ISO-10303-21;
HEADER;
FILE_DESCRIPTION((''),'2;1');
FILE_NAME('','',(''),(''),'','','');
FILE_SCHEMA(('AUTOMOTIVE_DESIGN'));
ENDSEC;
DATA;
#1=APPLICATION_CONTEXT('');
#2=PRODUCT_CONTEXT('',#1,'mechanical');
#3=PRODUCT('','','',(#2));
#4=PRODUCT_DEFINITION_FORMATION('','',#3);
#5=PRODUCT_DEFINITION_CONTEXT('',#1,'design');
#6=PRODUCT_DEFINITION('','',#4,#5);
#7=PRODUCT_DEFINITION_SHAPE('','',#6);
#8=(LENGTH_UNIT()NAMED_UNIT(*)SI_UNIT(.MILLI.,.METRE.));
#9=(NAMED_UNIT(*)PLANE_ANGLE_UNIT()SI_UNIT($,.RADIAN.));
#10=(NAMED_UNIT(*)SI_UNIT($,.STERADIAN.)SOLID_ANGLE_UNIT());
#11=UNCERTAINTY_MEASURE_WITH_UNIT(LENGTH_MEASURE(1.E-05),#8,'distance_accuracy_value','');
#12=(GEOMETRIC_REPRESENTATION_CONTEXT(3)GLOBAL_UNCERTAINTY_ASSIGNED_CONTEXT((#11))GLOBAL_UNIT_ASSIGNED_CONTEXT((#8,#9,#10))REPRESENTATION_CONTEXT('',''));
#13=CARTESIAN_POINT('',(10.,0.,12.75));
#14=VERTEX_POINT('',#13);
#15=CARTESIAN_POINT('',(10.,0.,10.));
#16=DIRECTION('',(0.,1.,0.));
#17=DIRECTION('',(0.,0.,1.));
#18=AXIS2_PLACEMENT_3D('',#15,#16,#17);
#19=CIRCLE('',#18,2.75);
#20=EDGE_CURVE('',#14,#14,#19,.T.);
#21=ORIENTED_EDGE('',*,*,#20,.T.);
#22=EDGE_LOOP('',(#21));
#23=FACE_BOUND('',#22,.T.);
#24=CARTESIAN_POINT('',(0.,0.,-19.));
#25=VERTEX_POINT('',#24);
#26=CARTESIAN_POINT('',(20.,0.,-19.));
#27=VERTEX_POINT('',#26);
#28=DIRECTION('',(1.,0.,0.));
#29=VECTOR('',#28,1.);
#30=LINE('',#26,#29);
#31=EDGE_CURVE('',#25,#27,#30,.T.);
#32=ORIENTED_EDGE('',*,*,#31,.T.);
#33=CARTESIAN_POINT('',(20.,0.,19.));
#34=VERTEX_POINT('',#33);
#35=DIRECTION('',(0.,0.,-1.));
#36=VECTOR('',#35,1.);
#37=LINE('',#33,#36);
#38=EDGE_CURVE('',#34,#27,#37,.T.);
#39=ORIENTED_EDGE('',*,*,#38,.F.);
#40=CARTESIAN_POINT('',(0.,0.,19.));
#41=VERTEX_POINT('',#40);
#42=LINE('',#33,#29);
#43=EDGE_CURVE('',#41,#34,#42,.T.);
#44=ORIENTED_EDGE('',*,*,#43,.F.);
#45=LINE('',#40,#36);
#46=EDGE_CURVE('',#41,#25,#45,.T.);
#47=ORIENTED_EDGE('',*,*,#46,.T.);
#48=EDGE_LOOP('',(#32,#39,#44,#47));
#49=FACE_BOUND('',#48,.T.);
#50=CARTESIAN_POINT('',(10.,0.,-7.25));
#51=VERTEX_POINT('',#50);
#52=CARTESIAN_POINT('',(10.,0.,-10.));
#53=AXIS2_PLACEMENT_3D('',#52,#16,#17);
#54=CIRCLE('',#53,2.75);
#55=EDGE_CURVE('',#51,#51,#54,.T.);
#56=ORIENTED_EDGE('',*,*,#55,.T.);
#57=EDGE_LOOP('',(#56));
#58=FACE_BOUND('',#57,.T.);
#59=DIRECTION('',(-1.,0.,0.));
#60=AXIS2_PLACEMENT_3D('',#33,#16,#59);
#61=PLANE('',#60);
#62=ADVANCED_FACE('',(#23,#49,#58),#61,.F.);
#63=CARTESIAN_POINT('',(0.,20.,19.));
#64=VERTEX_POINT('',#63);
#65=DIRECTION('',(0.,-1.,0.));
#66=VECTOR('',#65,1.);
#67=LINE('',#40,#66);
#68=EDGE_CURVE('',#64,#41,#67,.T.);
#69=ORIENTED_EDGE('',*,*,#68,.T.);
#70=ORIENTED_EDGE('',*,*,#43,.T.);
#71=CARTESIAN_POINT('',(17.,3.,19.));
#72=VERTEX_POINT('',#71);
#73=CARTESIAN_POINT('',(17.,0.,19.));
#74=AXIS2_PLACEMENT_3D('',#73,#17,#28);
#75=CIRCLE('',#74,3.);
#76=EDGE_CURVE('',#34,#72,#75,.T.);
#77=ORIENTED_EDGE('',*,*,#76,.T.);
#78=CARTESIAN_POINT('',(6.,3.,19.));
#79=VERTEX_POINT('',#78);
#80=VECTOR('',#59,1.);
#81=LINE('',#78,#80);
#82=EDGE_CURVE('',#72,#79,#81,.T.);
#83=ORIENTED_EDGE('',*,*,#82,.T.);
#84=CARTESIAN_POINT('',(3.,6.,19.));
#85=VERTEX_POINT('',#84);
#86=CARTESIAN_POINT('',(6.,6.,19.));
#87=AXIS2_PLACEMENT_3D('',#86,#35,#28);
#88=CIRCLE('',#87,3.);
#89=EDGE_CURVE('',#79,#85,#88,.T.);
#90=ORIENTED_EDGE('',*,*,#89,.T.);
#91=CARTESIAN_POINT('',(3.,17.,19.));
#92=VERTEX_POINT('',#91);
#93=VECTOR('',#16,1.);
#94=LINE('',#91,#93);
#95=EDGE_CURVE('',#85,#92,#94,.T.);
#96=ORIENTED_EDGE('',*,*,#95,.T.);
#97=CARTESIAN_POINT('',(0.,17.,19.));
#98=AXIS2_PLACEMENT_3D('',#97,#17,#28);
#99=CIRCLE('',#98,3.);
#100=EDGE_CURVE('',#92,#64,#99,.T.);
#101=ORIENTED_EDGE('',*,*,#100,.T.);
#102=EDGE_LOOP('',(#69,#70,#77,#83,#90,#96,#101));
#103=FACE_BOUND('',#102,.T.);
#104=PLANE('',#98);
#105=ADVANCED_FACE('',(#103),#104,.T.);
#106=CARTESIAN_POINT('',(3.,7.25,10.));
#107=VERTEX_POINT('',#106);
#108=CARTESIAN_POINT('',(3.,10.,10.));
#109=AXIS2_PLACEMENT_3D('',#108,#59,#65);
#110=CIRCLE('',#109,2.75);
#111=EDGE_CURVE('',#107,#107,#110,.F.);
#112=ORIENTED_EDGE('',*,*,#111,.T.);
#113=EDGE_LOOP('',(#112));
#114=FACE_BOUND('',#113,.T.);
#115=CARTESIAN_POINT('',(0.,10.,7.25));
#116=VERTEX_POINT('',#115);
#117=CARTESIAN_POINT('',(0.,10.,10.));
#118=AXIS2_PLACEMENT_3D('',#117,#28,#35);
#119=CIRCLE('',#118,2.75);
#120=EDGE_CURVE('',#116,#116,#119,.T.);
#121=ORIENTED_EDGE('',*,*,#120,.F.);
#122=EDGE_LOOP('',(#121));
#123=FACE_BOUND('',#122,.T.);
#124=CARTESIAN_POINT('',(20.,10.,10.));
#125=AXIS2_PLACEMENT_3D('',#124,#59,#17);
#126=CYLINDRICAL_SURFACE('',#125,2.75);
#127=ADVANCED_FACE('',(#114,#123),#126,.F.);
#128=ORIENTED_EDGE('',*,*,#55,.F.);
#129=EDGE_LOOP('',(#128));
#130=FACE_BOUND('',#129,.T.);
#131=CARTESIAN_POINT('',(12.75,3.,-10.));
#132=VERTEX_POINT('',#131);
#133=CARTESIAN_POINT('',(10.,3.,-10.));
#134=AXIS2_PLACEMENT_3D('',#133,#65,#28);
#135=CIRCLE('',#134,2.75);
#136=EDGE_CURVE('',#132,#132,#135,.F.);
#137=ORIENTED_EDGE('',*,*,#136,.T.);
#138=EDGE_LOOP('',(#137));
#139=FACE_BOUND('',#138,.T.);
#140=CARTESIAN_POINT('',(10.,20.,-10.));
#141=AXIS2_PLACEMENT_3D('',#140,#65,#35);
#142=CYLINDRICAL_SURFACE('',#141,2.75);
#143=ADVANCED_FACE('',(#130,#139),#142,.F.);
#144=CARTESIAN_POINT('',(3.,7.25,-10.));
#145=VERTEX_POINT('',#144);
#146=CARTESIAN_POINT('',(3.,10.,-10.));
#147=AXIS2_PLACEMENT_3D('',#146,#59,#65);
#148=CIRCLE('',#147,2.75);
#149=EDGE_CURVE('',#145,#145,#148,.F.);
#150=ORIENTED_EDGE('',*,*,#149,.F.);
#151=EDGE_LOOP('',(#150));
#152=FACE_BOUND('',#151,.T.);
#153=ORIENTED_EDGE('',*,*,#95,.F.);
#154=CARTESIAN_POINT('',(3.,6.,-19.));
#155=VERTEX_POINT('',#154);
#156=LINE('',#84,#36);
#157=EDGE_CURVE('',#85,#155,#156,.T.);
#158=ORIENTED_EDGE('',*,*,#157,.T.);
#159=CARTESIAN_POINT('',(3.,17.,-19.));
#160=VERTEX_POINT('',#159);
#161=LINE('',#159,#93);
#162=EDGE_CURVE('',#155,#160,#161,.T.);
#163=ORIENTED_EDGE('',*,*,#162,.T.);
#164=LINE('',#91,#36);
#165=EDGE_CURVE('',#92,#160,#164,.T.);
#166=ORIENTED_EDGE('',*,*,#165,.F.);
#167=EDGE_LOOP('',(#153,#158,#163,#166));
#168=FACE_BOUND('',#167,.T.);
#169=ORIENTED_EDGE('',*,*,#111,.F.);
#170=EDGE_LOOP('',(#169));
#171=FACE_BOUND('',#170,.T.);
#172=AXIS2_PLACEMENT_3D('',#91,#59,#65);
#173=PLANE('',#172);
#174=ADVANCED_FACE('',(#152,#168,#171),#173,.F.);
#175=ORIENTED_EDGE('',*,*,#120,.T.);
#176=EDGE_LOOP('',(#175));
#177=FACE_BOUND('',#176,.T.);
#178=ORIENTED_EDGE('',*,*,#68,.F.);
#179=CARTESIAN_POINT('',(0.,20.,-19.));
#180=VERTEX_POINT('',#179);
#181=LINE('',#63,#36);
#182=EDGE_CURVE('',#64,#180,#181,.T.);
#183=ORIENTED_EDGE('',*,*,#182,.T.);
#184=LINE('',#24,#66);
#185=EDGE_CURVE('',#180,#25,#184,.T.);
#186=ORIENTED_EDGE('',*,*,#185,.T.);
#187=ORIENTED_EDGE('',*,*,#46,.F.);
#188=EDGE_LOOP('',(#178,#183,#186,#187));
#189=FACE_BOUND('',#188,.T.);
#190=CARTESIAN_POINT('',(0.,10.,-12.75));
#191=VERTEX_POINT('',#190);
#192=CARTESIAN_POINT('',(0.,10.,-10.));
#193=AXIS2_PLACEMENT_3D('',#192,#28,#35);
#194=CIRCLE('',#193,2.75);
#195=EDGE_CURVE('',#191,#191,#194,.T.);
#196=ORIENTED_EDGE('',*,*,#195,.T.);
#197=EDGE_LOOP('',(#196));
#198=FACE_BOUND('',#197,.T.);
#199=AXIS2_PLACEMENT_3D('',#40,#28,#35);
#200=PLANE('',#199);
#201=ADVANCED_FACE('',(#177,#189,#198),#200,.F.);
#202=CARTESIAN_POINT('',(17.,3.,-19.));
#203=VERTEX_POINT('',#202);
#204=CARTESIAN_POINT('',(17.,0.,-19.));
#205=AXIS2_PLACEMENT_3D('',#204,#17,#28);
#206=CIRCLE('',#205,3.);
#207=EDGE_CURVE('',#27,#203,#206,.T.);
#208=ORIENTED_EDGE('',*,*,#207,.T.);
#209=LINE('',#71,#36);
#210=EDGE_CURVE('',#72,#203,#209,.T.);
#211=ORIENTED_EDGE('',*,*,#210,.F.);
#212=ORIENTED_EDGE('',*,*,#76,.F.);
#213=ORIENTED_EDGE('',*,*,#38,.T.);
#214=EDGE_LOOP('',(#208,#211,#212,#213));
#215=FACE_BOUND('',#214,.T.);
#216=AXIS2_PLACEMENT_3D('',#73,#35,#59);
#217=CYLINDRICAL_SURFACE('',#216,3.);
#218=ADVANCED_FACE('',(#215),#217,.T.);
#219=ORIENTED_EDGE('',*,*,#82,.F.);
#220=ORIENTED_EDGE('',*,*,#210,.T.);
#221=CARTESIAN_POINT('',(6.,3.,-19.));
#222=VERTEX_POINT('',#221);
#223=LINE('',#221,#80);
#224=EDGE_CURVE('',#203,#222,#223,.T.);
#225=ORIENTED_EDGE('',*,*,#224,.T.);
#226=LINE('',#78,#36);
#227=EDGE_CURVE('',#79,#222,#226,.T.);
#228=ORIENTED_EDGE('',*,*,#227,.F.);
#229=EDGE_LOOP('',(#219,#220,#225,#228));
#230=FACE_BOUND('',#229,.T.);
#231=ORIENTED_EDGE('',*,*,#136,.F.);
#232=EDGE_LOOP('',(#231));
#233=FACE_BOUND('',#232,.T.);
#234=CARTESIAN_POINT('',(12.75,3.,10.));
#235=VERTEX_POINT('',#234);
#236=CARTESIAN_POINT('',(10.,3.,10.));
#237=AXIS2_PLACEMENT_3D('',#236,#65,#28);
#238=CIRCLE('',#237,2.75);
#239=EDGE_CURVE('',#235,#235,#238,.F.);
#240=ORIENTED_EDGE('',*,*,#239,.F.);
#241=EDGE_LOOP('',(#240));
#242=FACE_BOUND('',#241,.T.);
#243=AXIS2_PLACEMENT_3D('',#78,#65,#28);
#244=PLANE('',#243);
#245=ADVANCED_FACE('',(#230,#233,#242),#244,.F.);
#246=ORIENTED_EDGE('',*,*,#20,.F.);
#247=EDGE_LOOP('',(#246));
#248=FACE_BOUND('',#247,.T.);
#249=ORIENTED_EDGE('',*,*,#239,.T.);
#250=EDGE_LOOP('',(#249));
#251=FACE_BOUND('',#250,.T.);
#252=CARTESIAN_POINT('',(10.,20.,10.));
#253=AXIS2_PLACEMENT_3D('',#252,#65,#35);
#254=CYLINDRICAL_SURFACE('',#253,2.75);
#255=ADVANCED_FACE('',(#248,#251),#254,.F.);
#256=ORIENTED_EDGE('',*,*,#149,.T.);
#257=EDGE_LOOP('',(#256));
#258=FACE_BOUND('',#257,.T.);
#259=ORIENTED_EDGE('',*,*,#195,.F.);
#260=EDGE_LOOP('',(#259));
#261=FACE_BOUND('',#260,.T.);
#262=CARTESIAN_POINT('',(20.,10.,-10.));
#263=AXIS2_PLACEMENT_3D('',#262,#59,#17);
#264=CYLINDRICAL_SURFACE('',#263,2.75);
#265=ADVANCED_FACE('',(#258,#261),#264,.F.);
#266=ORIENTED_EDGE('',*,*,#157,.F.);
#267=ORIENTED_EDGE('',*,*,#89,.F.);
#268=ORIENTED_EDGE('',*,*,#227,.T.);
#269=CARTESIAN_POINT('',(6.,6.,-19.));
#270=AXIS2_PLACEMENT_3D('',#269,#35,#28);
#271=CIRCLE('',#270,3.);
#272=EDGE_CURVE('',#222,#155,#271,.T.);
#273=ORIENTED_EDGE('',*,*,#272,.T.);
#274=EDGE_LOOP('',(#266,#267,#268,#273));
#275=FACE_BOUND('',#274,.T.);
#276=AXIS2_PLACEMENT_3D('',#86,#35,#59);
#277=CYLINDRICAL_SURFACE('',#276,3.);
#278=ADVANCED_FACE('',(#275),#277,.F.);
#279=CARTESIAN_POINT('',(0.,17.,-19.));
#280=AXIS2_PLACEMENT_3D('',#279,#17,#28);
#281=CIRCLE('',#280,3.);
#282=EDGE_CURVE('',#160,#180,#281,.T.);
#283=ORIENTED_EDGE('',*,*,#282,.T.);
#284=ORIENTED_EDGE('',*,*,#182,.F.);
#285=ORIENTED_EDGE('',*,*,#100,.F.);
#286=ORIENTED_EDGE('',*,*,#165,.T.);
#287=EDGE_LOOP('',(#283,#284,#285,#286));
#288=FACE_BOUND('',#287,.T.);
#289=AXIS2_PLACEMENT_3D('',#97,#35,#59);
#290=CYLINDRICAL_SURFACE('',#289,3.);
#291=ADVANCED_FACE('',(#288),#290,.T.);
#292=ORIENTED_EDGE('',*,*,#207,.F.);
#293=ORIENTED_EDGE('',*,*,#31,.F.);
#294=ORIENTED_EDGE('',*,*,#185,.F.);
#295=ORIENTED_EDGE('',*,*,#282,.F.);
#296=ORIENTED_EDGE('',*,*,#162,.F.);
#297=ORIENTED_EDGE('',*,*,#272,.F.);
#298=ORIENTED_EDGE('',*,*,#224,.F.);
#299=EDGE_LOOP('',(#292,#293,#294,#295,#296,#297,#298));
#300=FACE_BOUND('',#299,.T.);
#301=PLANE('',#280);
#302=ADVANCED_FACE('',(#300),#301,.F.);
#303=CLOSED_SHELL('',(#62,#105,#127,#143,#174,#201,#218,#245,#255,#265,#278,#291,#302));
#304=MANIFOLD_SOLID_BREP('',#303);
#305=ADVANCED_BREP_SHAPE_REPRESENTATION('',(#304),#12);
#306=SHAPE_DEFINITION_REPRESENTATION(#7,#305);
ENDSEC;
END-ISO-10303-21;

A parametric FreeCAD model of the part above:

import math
import FreeCAD as App
import Part
import Sketcher

V = App.Vector
Q = App.Units.Quantity

doc = App.newDocument("Part")
body = doc.addObject("PartDesign::Body", "Body")

sketch1 = doc.addObject("Sketcher::SketchObject", "Sketch")
body.addObject(sketch1)
sketch1.AttachmentSupport = (doc.XY_Plane, [""])
sketch1.MapMode = "FlatFace"
sketch1.addGeometry(Part.LineSegment(V(0, 20, 0), V(0, 0, 0)), False)
sketch1.addGeometry(Part.LineSegment(V(0, 0, 0), V(20, 0, 0)), False)
sketch1.addGeometry(Part.ArcOfCircle(Part.Circle(V(17, 0, 0), V(0, 0, 1), 3), math.radians(0), math.radians(90)), False)
sketch1.addGeometry(Part.LineSegment(V(17, 3, 0), V(6, 3, 0)), False)
sketch1.addGeometry(Part.ArcOfCircle(Part.Circle(V(6, 6, 0), V(0, 0, 1), 3), math.radians(180), math.radians(270)), False)
sketch1.addGeometry(Part.LineSegment(V(3, 6, 0), V(3, 17, 0)), False)
sketch1.addGeometry(Part.ArcOfCircle(Part.Circle(V(0, 17, 0), V(0, 0, 1), 3), math.radians(0), math.radians(90)), False)
sketch1.addConstraint(Sketcher.Constraint("Coincident", 0, 2, 1, 1))
sketch1.addConstraint(Sketcher.Constraint("Coincident", 1, 2, 2, 1))
sketch1.addConstraint(Sketcher.Constraint("Tangent", 2, 2, 3, 1))
sketch1.addConstraint(Sketcher.Constraint("Tangent", 3, 2, 4, 2))
sketch1.addConstraint(Sketcher.Constraint("Tangent", 4, 1, 5, 1))
sketch1.addConstraint(Sketcher.Constraint("Tangent", 5, 2, 6, 1))
sketch1.addConstraint(Sketcher.Constraint("Coincident", 6, 2, 0, 1))
sketch1.addConstraint(Sketcher.Constraint("Vertical", 0))
sketch1.addConstraint(Sketcher.Constraint("Horizontal", 1))
sketch1.addConstraint(Sketcher.Constraint("Horizontal", 3))
sketch1.addConstraint(Sketcher.Constraint("Vertical", 5))
sketch1.addConstraint(Sketcher.Constraint("Coincident", 0, 2, -1, 1))
sketch1.addConstraint(Sketcher.Constraint("Equal", 2, 4))
sketch1.addConstraint(Sketcher.Constraint("Equal", 4, 6))
sketch1.addConstraint(Sketcher.Constraint("PointOnObject", 2, 3, -1))
sketch1.addConstraint(Sketcher.Constraint("PointOnObject", 6, 3, -2))
sketch1.addConstraint(Sketcher.Constraint("Equal", 1, 0))
sketch1.addConstraint(Sketcher.Constraint("Radius", 2, Q("3 mm")))
sketch1.addConstraint(Sketcher.Constraint("DistanceX", 1, 1, 1, 2, Q("20 mm")))
pad1 = doc.addObject("PartDesign::Pad", "Pad")
body.addObject(pad1)
pad1.Profile = sketch1
pad1.Length = 38
pad1.Midplane = True

sketch2 = doc.addObject("Sketcher::SketchObject", "Sketch001")
body.addObject(sketch2)
sketch2.AttachmentSupport = (doc.XZ_Plane, [""])
sketch2.MapMode = "FlatFace"
sketch2.addGeometry(Part.Circle(V(10, 10, 0), V(0, 0, 1), 2.8), False)
sketch2.addGeometry(Part.Circle(V(10, -10, 0), V(0, 0, 1), 2.8), False)
sketch2.addConstraint(Sketcher.Constraint("Equal", 0, 1))
sketch2.addConstraint(Sketcher.Constraint("Symmetric", 0, 3, 1, 3, -1))
sketch2.addConstraint(Sketcher.Constraint("Diameter", 0, Q("5.5 mm")))
sketch2.addConstraint(Sketcher.Constraint("DistanceX", -1, 1, 0, 3, Q("10 mm")))
sketch2.addConstraint(Sketcher.Constraint("DistanceY", -1, 1, 0, 3, Q("10 mm")))
pocket1 = doc.addObject("PartDesign::Pocket", "Pocket")
body.addObject(pocket1)
pocket1.Profile = sketch2
pocket1.Type = "ThroughAll"

sketch3 = doc.addObject("Sketcher::SketchObject", "Sketch002")
body.addObject(sketch3)
sketch3.AttachmentSupport = (doc.YZ_Plane, [""])
sketch3.MapMode = "FlatFace"
sketch3.addGeometry(Part.Circle(V(10, 10, 0), V(0, 0, 1), 2.8), False)
sketch3.addGeometry(Part.Circle(V(10, -10, 0), V(0, 0, 1), 2.8), False)
sketch3.addConstraint(Sketcher.Constraint("Equal", 0, 1))
sketch3.addConstraint(Sketcher.Constraint("Symmetric", 0, 3, 1, 3, -1))
sketch3.addConstraint(Sketcher.Constraint("Diameter", 0, Q("5.5 mm")))
sketch3.addConstraint(Sketcher.Constraint("DistanceX", -1, 1, 0, 3, Q("10 mm")))
sketch3.addConstraint(Sketcher.Constraint("DistanceY", -1, 1, 0, 3, Q("10 mm")))
pocket2 = doc.addObject("PartDesign::Pocket", "Pocket001")
body.addObject(pocket2)
pocket2.Profile = sketch3
pocket2.Type = "ThroughAll"
pocket2.Reversed = True

doc.recompute()
